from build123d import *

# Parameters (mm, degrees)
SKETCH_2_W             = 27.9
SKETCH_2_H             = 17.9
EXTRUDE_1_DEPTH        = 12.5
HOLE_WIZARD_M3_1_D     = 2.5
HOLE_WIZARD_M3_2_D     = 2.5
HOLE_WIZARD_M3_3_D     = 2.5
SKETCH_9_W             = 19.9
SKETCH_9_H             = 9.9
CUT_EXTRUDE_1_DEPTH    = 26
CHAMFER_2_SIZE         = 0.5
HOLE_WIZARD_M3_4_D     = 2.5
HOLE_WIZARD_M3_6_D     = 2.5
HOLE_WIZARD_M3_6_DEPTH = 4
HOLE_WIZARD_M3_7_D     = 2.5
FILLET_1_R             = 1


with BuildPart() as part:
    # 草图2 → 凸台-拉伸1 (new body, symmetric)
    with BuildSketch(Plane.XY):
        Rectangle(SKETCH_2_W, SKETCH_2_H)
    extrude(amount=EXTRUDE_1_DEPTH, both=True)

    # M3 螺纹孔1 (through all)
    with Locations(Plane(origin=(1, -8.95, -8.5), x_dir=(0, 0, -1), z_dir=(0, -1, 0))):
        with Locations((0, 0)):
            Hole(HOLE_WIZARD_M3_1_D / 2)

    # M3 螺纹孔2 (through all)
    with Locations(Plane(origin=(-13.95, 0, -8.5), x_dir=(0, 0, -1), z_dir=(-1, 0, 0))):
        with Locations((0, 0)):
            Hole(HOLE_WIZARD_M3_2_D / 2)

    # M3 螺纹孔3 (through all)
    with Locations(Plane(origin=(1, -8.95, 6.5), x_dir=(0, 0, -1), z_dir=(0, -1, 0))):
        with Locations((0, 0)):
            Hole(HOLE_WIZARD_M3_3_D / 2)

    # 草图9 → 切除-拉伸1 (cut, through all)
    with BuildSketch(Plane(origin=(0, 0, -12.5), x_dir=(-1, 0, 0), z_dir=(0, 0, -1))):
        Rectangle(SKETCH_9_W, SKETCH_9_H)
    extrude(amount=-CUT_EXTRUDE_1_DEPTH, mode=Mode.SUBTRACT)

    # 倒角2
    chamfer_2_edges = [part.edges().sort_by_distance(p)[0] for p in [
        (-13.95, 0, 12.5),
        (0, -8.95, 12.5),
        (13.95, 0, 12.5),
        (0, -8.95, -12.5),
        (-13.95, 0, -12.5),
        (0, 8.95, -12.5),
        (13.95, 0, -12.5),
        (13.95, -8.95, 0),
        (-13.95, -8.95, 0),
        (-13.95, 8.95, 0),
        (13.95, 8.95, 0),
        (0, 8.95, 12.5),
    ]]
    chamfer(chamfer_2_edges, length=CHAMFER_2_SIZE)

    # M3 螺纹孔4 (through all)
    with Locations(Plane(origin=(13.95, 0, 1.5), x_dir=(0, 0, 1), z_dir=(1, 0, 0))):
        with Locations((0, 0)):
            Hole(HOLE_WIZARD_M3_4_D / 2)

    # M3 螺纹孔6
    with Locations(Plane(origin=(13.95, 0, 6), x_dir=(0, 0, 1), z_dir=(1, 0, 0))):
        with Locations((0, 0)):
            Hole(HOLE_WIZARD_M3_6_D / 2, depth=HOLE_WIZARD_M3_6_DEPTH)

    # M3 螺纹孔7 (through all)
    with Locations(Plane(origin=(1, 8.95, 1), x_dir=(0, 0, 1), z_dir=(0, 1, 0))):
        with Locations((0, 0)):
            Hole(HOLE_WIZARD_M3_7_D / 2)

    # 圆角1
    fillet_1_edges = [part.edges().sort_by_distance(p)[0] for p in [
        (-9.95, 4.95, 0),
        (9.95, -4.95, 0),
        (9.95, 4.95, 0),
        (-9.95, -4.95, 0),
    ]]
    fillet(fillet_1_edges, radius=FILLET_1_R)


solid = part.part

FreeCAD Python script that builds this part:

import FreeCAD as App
import Part
import Sketcher

V = App.Vector


def edges_at(feature, points):
    """Names of the edges that pass closest to the given points."""
    edges = feature.Shape.Edges
    near = lambda p: min(range(len(edges)), key=lambda i: edges[i].distToShape(Part.Vertex(*p))[0])
    return sorted({f"Edge{near(p) + 1}" for p in points})


def add_polygon(sketch, points):
    """Adds a closed chain of lines whose ends are joined by coincident constraints."""
    first, n = sketch.GeometryCount, len(points)
    for a, b in zip(points, points[1:] + points[:1]):
        sketch.addGeometry(Part.LineSegment(App.Vector(*a, 0), App.Vector(*b, 0)), False)
    for i in range(n):
        sketch.addConstraint(Sketcher.Constraint("Coincident", first + i, 2, first + (i + 1) % n, 1))

doc = App.newDocument("Part")
body = doc.addObject("PartDesign::Body", "Body")

# Sketch on XY plane
sketch1 = doc.addObject("Sketcher::SketchObject", "Sketch")
body.addObject(sketch1)
sketch1.AttachmentSupport = (doc.XY_Plane, [""])
sketch1.MapMode = "FlatFace"
add_polygon(sketch1, [(-13.95, 8.95), (-13.95, -8.95), (13.95, -8.95), (13.95, 8.95)])  # lines 0-3
sketch1.addConstraint([
    Sketcher.Constraint("Vertical", 0),
    Sketcher.Constraint("Horizontal", 1),
    Sketcher.Constraint("Vertical", 2),
    Sketcher.Constraint("Horizontal", 3),
    Sketcher.Constraint("Symmetric", 0, 2, 2, 2, -1, 1),
    Sketcher.Constraint("DistanceX", 1, 1, 1, 2, 27.9),
    Sketcher.Constraint("DistanceY", 0, 2, 0, 1, 17.9),
])
pad1 = doc.addObject("PartDesign::Pad", "Pad")
body.addObject(pad1)
pad1.Profile = sketch1
pad1.Length = 25
pad1.Midplane = True

# Sketch on XZ plane
sketch2 = doc.addObject("Sketcher::SketchObject", "Sketch001")
body.addObject(sketch2)
sketch2.AttachmentSupport = (doc.XZ_Plane, [""])
sketch2.MapMode = "FlatFace"
sketch2.AttachmentOffset = App.Placement(V(0, 0, 8.95), App.Rotation())
sketch2.addGeometry(Part.Circle(V(1, -8.5, 0), V(0, 0, 1), 1.25), False)
sketch2.addConstraint([
    Sketcher.Constraint("Diameter", 0, 2.5),
    Sketcher.Constraint("DistanceX", -1, 1, 0, 3, 1.0),
    Sketcher.Constraint("DistanceY", 0, 3, -1, 1, 8.5),
])
doc.recompute()
hole = doc.addObject("PartDesign::Hole", "Hole")
body.addObject(hole)
hole.Profile = sketch2
hole.ThreadType = "None"
hole.Diameter = 2.5
hole.DepthType = "ThroughAll"

# Sketch on YZ plane
sketch3 = doc.addObject("Sketcher::SketchObject", "Sketch002")
body.addObject(sketch3)
sketch3.AttachmentSupport = (doc.YZ_Plane, [""])
sketch3.MapMode = "FlatFace"
sketch3.AttachmentOffset = App.Placement(V(0, 0, -13.95), App.Rotation())
sketch3.addGeometry(Part.Circle(V(0, -8.5, 0), V(0, 0, 1), 1.25), False)
sketch3.addConstraint([
    Sketcher.Constraint("PointOnObject", 0, 3, -2),
    Sketcher.Constraint("Diameter", 0, 2.5),
    Sketcher.Constraint("DistanceY", 0, 3, -1, 1, 8.5),
])
doc.recompute()
hole2 = doc.addObject("PartDesign::Hole", "Hole001")
body.addObject(hole2)
hole2.Profile = sketch3
hole2.ThreadType = "None"
hole2.Diameter = 2.5
hole2.DepthType = "ThroughAll"
hole2.Reversed = True

# Sketch on XZ plane
sketch4 = doc.addObject("Sketcher::SketchObject", "Sketch003")
body.addObject(sketch4)
sketch4.AttachmentSupport = (doc.XZ_Plane, [""])
sketch4.MapMode = "FlatFace"
sketch4.AttachmentOffset = App.Placement(V(0, 0, 8.95), App.Rotation())
sketch4.addGeometry(Part.Circle(V(1, 6.5, 0), V(0, 0, 1), 1.25), False)
sketch4.addConstraint([
    Sketcher.Constraint("Diameter", 0, 2.5),
    Sketcher.Constraint("DistanceX", -1, 1, 0, 3, 1.0),
    Sketcher.Constraint("DistanceY", -1, 1, 0, 3, 6.5),
])
doc.recompute()
hole3 = doc.addObject("PartDesign::Hole", "Hole002")
body.addObject(hole3)
hole3.Profile = sketch4
hole3.ThreadType = "None"
hole3.Diameter = 2.5
hole3.DepthType = "ThroughAll"

# Sketch on XY plane
sketch5 = doc.addObject("Sketcher::SketchObject", "Sketch004")
body.addObject(sketch5)
sketch5.AttachmentSupport = (doc.XY_Plane, [""])
sketch5.MapMode = "FlatFace"
sketch5.AttachmentOffset = App.Placement(V(0, 0, -12.5), App.Rotation())
add_polygon(sketch5, [(9.95, 4.95), (9.95, -4.95), (-9.95, -4.95), (-9.95, 4.95)])  # lines 0-3
sketch5.addConstraint([
    Sketcher.Constraint("Vertical", 0),
    Sketcher.Constraint("Horizontal", 1),
    Sketcher.Constraint("Vertical", 2),
    Sketcher.Constraint("Horizontal", 3),
    Sketcher.Constraint("Symmetric", 0, 2, 2, 2, -1, 1),
    Sketcher.Constraint("DistanceX", 1, 2, 1, 1, 19.9),
    Sketcher.Constraint("DistanceY", 0, 2, 0, 1, 9.9),
])
pocket1 = doc.addObject("PartDesign::Pocket", "Pocket")
body.addObject(pocket1)
pocket1.Profile = sketch5
pocket1.Type = "ThroughAll"
pocket1.Reversed = True
doc.recompute()

chamfer = doc.addObject("PartDesign::Chamfer", "Chamfer")
body.addObject(chamfer)
chamfer.Base = (pocket1, edges_at(pocket1, [
    (-13.95, 0, 12.5),
    (0, -8.95, 12.5),
    (13.95, 0, 12.5),
    (0, -8.95, -12.5),
    (-13.95, 0, -12.5),
    (0, 8.95, -12.5),
    (13.95, 0, -12.5),
    (13.95, -8.95, 0),
    (-13.95, -8.95, 0),
    (-13.95, 8.95, 0),
    (13.95, 8.95, 0),
    (0, 8.95, 12.5),
]))
chamfer.Size = 0.5

# Sketch on YZ plane
sketch6 = doc.addObject("Sketcher::SketchObject", "Sketch005")
body.addObject(sketch6)
sketch6.AttachmentSupport = (doc.YZ_Plane, [""])
sketch6.MapMode = "FlatFace"
sketch6.AttachmentOffset = App.Placement(V(0, 0, 13.95), App.Rotation())
sketch6.addGeometry(Part.Circle(V(0, 1.5, 0), V(0, 0, 1), 1.25), False)
sketch6.addConstraint([
    Sketcher.Constraint("PointOnObject", 0, 3, -2),
    Sketcher.Constraint("Diameter", 0, 2.5),
    Sketcher.Constraint("DistanceY", -1, 1, 0, 3, 1.5),
])
doc.recompute()
hole4 = doc.addObject("PartDesign::Hole", "Hole003")
body.addObject(hole4)
hole4.Profile = sketch6
hole4.ThreadType = "None"
hole4.Diameter = 2.5
hole4.DepthType = "ThroughAll"

# Sketch on YZ plane
sketch7 = doc.addObject("Sketcher::SketchObject", "Sketch006")
body.addObject(sketch7)
sketch7.AttachmentSupport = (doc.YZ_Plane, [""])
sketch7.MapMode = "FlatFace"
sketch7.AttachmentOffset = App.Placement(V(0, 0, 13.95), App.Rotation())
sketch7.addGeometry(Part.Circle(V(0, 6, 0), V(0, 0, 1), 1.25), False)
sketch7.addConstraint([
    Sketcher.Constraint("PointOnObject", 0, 3, -2),
    Sketcher.Constraint("Diameter", 0, 2.5),
    Sketcher.Constraint("DistanceY", -1, 1, 0, 3, 6.0),
])
doc.recompute()
hole5 = doc.addObject("PartDesign::Hole", "Hole004")
body.addObject(hole5)
hole5.Profile = sketch7
hole5.ThreadType = "None"
hole5.Diameter = 2.5
hole5.DepthType = "Dimension"
hole5.Depth = 4
hole5.DrillPoint = "Flat"

# Sketch on XZ plane
sketch8 = doc.addObject("Sketcher::SketchObject", "Sketch007")
body.addObject(sketch8)
sketch8.AttachmentSupport = (doc.XZ_Plane, [""])
sketch8.MapMode = "FlatFace"
sketch8.AttachmentOffset = App.Placement(V(0, 0, -8.95), App.Rotation())
sketch8.addGeometry(Part.Circle(V(1, 1, 0), V(0, 0, 1), 1.25), False)
sketch8.addConstraint([
    Sketcher.Constraint("Diameter", 0, 2.5),
    Sketcher.Constraint("DistanceX", -1, 1, 0, 3, 1.0),
    Sketcher.Constraint("DistanceY", -1, 1, 0, 3, 1.0),
])
doc.recompute()
hole6 = doc.addObject("PartDesign::Hole", "Hole005")
body.addObject(hole6)
hole6.Profile = sketch8
hole6.ThreadType = "None"
hole6.Diameter = 2.5
hole6.DepthType = "ThroughAll"
hole6.Reversed = True
doc.recompute()

fillet = doc.addObject("PartDesign::Fillet", "Fillet")
body.addObject(fillet)
fillet.Base = (hole6, edges_at(hole6, [
    (-9.95, 4.95, 0),
    (9.95, -4.95, 0),
    (9.95, 4.95, 0),
    (-9.95, -4.95, 0),
]))
fillet.Radius = 1

doc.recompute()
